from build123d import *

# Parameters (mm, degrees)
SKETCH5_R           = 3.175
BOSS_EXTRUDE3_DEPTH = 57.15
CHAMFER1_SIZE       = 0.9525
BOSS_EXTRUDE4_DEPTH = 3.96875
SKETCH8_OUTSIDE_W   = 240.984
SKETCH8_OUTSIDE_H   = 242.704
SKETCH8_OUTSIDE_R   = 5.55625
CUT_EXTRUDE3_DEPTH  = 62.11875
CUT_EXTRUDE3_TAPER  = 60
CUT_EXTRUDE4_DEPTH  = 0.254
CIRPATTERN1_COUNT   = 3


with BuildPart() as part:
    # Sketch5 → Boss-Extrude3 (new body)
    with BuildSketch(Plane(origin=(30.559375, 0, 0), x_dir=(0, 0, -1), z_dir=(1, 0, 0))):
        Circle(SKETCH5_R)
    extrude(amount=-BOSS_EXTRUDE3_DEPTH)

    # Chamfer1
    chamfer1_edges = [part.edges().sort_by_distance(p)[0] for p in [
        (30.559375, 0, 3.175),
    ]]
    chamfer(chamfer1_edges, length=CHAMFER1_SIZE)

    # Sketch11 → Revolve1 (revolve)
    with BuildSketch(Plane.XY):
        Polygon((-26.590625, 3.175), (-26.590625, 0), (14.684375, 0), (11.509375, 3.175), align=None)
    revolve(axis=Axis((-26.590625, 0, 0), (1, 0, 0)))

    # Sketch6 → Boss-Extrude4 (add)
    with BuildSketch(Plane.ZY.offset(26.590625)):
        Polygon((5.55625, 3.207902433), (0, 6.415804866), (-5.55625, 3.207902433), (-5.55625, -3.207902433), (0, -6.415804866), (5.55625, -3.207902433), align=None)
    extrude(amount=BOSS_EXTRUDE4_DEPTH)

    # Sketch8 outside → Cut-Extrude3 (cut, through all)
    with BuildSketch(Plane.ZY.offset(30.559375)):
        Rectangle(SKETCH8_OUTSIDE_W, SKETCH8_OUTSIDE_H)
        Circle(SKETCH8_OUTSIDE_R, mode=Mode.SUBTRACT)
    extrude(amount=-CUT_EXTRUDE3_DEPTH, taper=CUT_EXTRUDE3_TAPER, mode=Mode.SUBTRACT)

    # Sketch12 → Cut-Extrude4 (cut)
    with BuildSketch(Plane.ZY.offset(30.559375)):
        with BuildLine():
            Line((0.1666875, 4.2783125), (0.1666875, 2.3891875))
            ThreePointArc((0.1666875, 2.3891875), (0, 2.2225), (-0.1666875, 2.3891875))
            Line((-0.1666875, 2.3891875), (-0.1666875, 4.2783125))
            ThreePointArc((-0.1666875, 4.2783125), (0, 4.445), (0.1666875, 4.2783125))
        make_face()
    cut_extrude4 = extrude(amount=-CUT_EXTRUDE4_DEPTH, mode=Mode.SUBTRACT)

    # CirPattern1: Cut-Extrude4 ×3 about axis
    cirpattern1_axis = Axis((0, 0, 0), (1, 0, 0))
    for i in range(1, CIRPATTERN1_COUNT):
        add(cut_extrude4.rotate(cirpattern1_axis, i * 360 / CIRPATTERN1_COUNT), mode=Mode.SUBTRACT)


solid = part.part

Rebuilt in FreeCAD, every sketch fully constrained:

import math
import FreeCAD as App
import Part
import Sketcher
Q = App.Units.Quantity


def edges_at(feature, points):
    """Names of the edges that pass closest to the given points."""
    edges = feature.Shape.Edges
    near = lambda p: min(range(len(edges)), key=lambda i: edges[i].distToShape(Part.Vertex(*p))[0])
    return sorted({f"Edge{near(p) + 1}" for p in points})


def add_polygon(sketch, points):
    """Adds a closed chain of lines whose ends are joined by coincident constraints."""
    first, n = sketch.GeometryCount, len(points)
    for a, b in zip(points, points[1:] + points[:1]):
        sketch.addGeometry(Part.LineSegment(App.Vector(*a, 0), App.Vector(*b, 0)), False)
    for i in range(n):
        sketch.addConstraint(Sketcher.Constraint("Coincident", first + i, 2, first + (i + 1) % n, 1))

doc = App.newDocument("Part")
params = doc.addObject("Spreadsheet::Sheet", "Params")
for row, (alias, value) in enumerate([
    ("sketch1_diameter", "0.25 in"),
    ("pad1_length", "2.25 in"),
    ("chamfer_size", "0.0375 in"),
    ("sketch2_width", "1.5 in"),
    ("sketch2_width2", "1.625 in"),
    ("revolution_angle", "360 deg"),
    ("pad2_length", "0.15625 in"),
    ("sketch4_diameter", "0.4375 in"),
    ("pocket1_length", "62.11875 mm"),
    ("pocket1_taper", "60 deg"),
    ("pocket2_length", "0.01 in"),
], start=1):
    params.set(f"A{row}", alias)
    params.set(f"B{row}", "=" + value)
    params.setAlias(f"B{row}", alias)

body = doc.addObject("PartDesign::Body", "Body")

# Sketch on YZ plane
sketch1 = doc.addObject("Sketcher::SketchObject", "Sketch")
body.addObject(sketch1)
sketch1.AttachmentSupport = (doc.YZ_Plane, [""])
sketch1.MapMode = "FlatFace"
sketch1.AttachmentOffset = App.Placement(App.Vector(0, 0, 1.203125 * 25.4), App.Rotation())
sketch1.addGeometry(Part.Circle(App.Vector(0, 0, 0), App.Vector(0, 0, 1), 3.2), False)
sketch1.addConstraint([
    Sketcher.Constraint("Coincident", 0, 3, -1, 1),
    Sketcher.Constraint("Diameter", 0, Q("0.25 in")),
])
sketch1.setExpression("Constraints[1]", "Params.sketch1_diameter")
pad1 = doc.addObject("PartDesign::Pad", "Pad")
body.addObject(pad1)
pad1.Profile = sketch1
pad1.setExpression("Length", "Params.pad1_length")
pad1.Reversed = True
doc.recompute()

chamfer = doc.addObject("PartDesign::Chamfer", "Chamfer")
body.addObject(chamfer)
chamfer.Base = (pad1, edges_at(pad1, [(30.559, 0, 3.175)]))
chamfer.setExpression("Size", "Params.chamfer_size")

# Sketch on XY plane
sketch2 = doc.addObject("Sketcher::SketchObject", "Sketch001")
body.addObject(sketch2)
sketch2.AttachmentSupport = (doc.XY_Plane, [""])
sketch2.MapMode = "FlatFace"
add_polygon(sketch2, [(-26.6, 3.2), (-26.6, 0), (14.7, 0), (11.5, 3.2)])  # lines 0-3
sketch2.addConstraint([
    Sketcher.Constraint("Vertical", 0),
    Sketcher.Constraint("Horizontal", 1),
    Sketcher.Constraint("Horizontal", 3),
    Sketcher.Constraint("PointOnObject", 0, 2, -1),
    Sketcher.Constraint("DistanceX", 3, 2, 3, 1, Q("1.5 in")),
    Sketcher.Constraint("Angle", 2, Q("135 deg")),
    Sketcher.Constraint("DistanceX", 1, 1, 1, 2, Q("1.625 in")),
    Sketcher.Constraint("DistanceX", 0, 2, -1, 1, Q("1.046875 in")),
])
sketch2.setExpression("Constraints[8]", "Params.sketch2_width")
sketch2.setExpression("Constraints[10]", "Params.sketch2_width2")
revolution = doc.addObject("PartDesign::Revolution", "Revolution")
body.addObject(revolution)
revolution.Profile = sketch2
revolution.ReferenceAxis = (sketch2, ["H_Axis"])
revolution.setExpression("Angle", "Params.revolution_angle")

# Sketch on YZ plane
sketch3 = doc.addObject("Sketcher::SketchObject", "Sketch002")
body.addObject(sketch3)
sketch3.AttachmentSupport = (doc.YZ_Plane, [""])
sketch3.MapMode = "FlatFace"
sketch3.AttachmentOffset = App.Placement(App.Vector(0, 0, -1.046875 * 25.4), App.Rotation())
add_polygon(sketch3, [(3, 6), (6, 0), (3, -6), (-3, -6), (-6, 0), (-3, 6)])  # lines 0-5
sketch3.addConstraint([
    Sketcher.Constraint("Horizontal", 2),
    Sketcher.Constraint("Horizontal", 5),
    Sketcher.Constraint("Symmetric", 0, 2, 3, 2, -1, 1),
    Sketcher.Constraint("Symmetric", 1, 2, 4, 2, -1, 1),
    Sketcher.Constraint("PointOnObject", 0, 2, -1),
    Sketcher.Constraint("Parallel", 0, 3),
    Sketcher.Constraint("Vertical", 2, 2, 4, 2),
    Sketcher.Constraint("Angle", 0, Q("-60 deg")),
    Sketcher.Constraint("DistanceY", 1, 2, -1, 1, Q("0.21875 in")),
    Sketcher.Constraint("DistanceX", 2, 2, 2, 1, 6.415805),
])
pad2 = doc.addObject("PartDesign::Pad", "Pad001")
body.addObject(pad2)
pad2.Profile = sketch3
pad2.setExpression("Length", "Params.pad2_length")
pad2.Reversed = True

# Sketch on YZ plane
sketch4 = doc.addObject("Sketcher::SketchObject", "Sketch003")
body.addObject(sketch4)
sketch4.AttachmentSupport = (doc.YZ_Plane, [""])
sketch4.MapMode = "FlatFace"
sketch4.AttachmentOffset = App.Placement(App.Vector(0, 0, -1.203125 * 25.4), App.Rotation())
add_polygon(sketch4, [(121, -120), (-121, -120), (-121, 120), (121, 120)])  # lines 0-3
sketch4.addGeometry(Part.Circle(App.Vector(0, 0, 0), App.Vector(0, 0, 1), 6), False)  # 4
sketch4.addConstraint([
    Sketcher.Constraint("Horizontal", 0),
    Sketcher.Constraint("Vertical", 1),
    Sketcher.Constraint("Horizontal", 2),
    Sketcher.Constraint("Vertical", 3),
    Sketcher.Constraint("Coincident", 4, 3, -1, 1),
    Sketcher.Constraint("Symmetric", 0, 2, 2, 2, -1, 1),
    Sketcher.Constraint("Diameter", 4, Q("0.4375 in")),
    Sketcher.Constraint("DistanceX", 0, 2, 0, 1, 242.704),
    Sketcher.Constraint("DistanceY", 1, 1, 1, 2, 240.984),
])
sketch4.setExpression("Constraints[10]", "Params.sketch4_diameter")
pocket1 = doc.addObject("PartDesign::Pocket", "Pocket")
body.addObject(pocket1)
pocket1.Profile = sketch4
pocket1.setExpression("Length", "Params.pocket1_length")
pocket1.Reversed = True
pocket1.setExpression("TaperAngle", "Params.pocket1_taper")

# Sketch on YZ plane
sketch5 = doc.addObject("Sketcher::SketchObject", "Sketch004")
body.addObject(sketch5)
sketch5.AttachmentSupport = (doc.YZ_Plane, [""])
sketch5.MapMode = "FlatFace"
sketch5.AttachmentOffset = App.Placement(App.Vector(0, 0, -1.203125 * 25.4), App.Rotation())
sketch5.addGeometry([
    Part.LineSegment(App.Vector(2.39, 0.17, 0), App.Vector(4.28, 0.17, 0)),
    Part.ArcOfCircle(Part.Circle(App.Vector(4.28, 0, 0), App.Vector(0, 0, 1), 0.17), math.radians(-90), math.radians(90)),
    Part.LineSegment(App.Vector(4.28, -0.17, 0), App.Vector(2.39, -0.17, 0)),
    Part.ArcOfCircle(Part.Circle(App.Vector(2.39, 0, 0), App.Vector(0, 0, 1), 0.17), math.radians(90), math.radians(270)),
], False)
sketch5.addConstraint([
    Sketcher.Constraint("Tangent", 0, 2, 1, 2),
    Sketcher.Constraint("Tangent", 1, 1, 2, 1),
    Sketcher.Constraint("Tangent", 2, 2, 3, 2),
    Sketcher.Constraint("Tangent", 3, 1, 0, 1),
    Sketcher.Constraint("Horizontal", 0),
    Sketcher.Constraint("Horizontal", 2),
    Sketcher.Constraint("PointOnObject", 1, 3, -1),
    Sketcher.Constraint("Radius", 1, 0.166687),
    Sketcher.Constraint("DistanceX", 0, 1, 0, 2, 1.889125),
    Sketcher.Constraint("DistanceX", -1, 1, 1, 3, 4.278313),
])
pocket2 = doc.addObject("PartDesign::Pocket", "Pocket001")
body.addObject(pocket2)
pocket2.Profile = sketch5
pocket2.setExpression("Length", "Params.pocket2_length")
pocket2.Reversed = True
doc.recompute()

polarpattern = doc.addObject("PartDesign::PolarPattern", "PolarPattern")
body.addObject(polarpattern)
polarpattern.Originals = [pocket2]
polarpattern.Axis = (doc.X_Axis, [""])
polarpattern.Angle = 360
polarpattern.Occurrences = 3
body.Tip = polarpattern

doc.recompute()
